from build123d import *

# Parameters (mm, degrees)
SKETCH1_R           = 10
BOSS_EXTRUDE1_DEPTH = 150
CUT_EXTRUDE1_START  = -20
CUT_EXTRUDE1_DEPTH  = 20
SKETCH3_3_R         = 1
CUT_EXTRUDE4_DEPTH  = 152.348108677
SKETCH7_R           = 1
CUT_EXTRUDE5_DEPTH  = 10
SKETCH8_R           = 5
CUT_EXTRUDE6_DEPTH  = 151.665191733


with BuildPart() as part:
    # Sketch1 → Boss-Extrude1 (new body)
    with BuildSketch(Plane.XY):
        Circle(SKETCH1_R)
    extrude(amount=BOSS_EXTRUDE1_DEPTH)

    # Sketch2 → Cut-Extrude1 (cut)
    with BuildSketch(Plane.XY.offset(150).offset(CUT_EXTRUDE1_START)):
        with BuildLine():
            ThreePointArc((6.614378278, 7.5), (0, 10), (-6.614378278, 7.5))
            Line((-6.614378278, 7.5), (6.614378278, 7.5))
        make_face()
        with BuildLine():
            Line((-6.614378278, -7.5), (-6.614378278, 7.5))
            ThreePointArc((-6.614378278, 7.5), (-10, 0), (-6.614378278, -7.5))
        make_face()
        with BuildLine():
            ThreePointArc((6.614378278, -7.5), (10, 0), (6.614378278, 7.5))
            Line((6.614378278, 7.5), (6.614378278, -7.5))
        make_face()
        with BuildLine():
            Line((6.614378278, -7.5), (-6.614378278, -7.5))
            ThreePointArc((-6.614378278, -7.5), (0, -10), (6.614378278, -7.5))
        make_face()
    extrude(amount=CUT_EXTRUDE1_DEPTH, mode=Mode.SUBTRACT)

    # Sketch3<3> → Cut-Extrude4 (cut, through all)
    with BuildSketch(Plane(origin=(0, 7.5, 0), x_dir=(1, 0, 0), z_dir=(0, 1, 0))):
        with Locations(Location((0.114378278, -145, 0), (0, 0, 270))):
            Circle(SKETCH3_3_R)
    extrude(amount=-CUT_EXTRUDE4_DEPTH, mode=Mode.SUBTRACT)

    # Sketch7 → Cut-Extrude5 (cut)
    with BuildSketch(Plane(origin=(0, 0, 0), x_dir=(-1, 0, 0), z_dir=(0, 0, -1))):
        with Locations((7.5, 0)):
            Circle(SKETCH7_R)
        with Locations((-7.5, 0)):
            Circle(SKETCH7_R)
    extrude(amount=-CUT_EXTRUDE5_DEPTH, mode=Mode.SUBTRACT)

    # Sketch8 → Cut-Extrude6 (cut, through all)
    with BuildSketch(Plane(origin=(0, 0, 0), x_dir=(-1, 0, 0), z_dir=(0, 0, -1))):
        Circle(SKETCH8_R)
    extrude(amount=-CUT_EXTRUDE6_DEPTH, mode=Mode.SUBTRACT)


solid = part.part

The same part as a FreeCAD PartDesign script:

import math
import FreeCAD as App
import Part
import Sketcher

V = App.Vector

doc = App.newDocument("Part")
body = doc.addObject("PartDesign::Body", "Body")

# Sketch on XY plane
sketch1 = body.newObject("Sketcher::SketchObject", "Sketch")
sketch1.AttachmentSupport = (doc.getObject("XY_Plane"), [""])
sketch1.MapMode = "FlatFace"
sketch1.addGeometry(Part.Circle(V(0, 0, 0), V(0, 0, 1), 10), False)
sketch1.addConstraint([
    Sketcher.Constraint("Coincident", 0, 3, -1, 1),
    Sketcher.Constraint("Diameter", 0, 20.0),
])
pad1 = body.newObject("PartDesign::Pad", "Pad")
pad1.Profile = sketch1
pad1.Length = 150

# Sketch on XY plane
sketch2 = body.newObject("Sketcher::SketchObject", "Sketch001")
sketch2.AttachmentSupport = (doc.getObject("XY_Plane"), [""])
sketch2.MapMode = "FlatFace"
sketch2.AttachmentOffset = App.Placement(V(0, 0, 130), App.Rotation())
sketch2.addGeometry([
    Part.ArcOfCircle(Part.Circle(V(0, 0, 0), V(0, 0, 1), 10), math.radians(48.590378), math.radians(131.409622)),  # 0
    Part.LineSegment(V(-6.614378, 7.5, 0), V(6.614378, 7.5, 0)),  # 1
    Part.LineSegment(V(-6.614378, -7.5, 0), V(-6.614378, 7.5, 0)),  # 2
    Part.ArcOfCircle(Part.Circle(V(0, 0, 0), V(0, 0, 1), 10), math.radians(131.409622), math.radians(228.590378)),  # 3
    Part.ArcOfCircle(Part.Circle(V(0, 0, 0), V(0, 0, 1), 10), math.radians(-48.590378), math.radians(48.590378)),  # 4
    Part.LineSegment(V(6.614378, 7.5, 0), V(6.614378, -7.5, 0)),  # 5
    Part.LineSegment(V(6.614378, -7.5, 0), V(-6.614378, -7.5, 0)),  # 6
    Part.ArcOfCircle(Part.Circle(V(0, 0, 0), V(0, 0, 1), 10), math.radians(-131.409622), math.radians(-48.590378)),  # 7
], False)
sketch2.addConstraint([
    Sketcher.Constraint("Coincident", 0, 1, 1, 2),
    Sketcher.Constraint("Coincident", 1, 1, 0, 2),
    Sketcher.Constraint("Coincident", 2, 1, 3, 2),
    Sketcher.Constraint("Coincident", 3, 1, 2, 2),
    Sketcher.Constraint("Coincident", 4, 1, 5, 2),
    Sketcher.Constraint("Coincident", 5, 1, 4, 2),
    Sketcher.Constraint("Coincident", 6, 1, 7, 2),
    Sketcher.Constraint("Coincident", 7, 1, 6, 2),
    Sketcher.Constraint("Horizontal", 1),
    Sketcher.Constraint("Vertical", 2),
    Sketcher.Constraint("Vertical", 5),
    Sketcher.Constraint("Horizontal", 6),
    Sketcher.Constraint("Coincident", 0, 3, -1, 1),
    Sketcher.Constraint("Coincident", 3, 3, -1, 1),
    Sketcher.Constraint("Coincident", 4, 3, -1, 1),
    Sketcher.Constraint("Coincident", 7, 3, -1, 1),
    Sketcher.Constraint("Coincident", 3, 1, 1, 1),
    Sketcher.Constraint("Coincident", 5, 1, 0, 1),
    Sketcher.Constraint("Coincident", 6, 1, 4, 1),
    Sketcher.Constraint("Radius", 0, 10.0),
    Sketcher.Constraint("DistanceY", 2, 1, 2, 2, 15.0),
])
pocket1 = body.newObject("PartDesign::Pocket", "Pocket")
pocket1.Profile = sketch2
pocket1.Length = 20
pocket1.Reversed = True

# Sketch on XZ plane
sketch3 = body.newObject("Sketcher::SketchObject", "Sketch002")
sketch3.AttachmentSupport = (doc.getObject("XZ_Plane"), [""])
sketch3.MapMode = "FlatFace"
sketch3.AttachmentOffset = App.Placement(V(0, 0, -7.5), App.Rotation())
sketch3.addGeometry(Part.Circle(V(0.114378, 145, 0), V(0, 0, 1), 1), False)
sketch3.addConstraint([
    Sketcher.Constraint("Diameter", 0, 2.0),
    Sketcher.Constraint("DistanceY", -1, 1, 0, 3, 145.0),
    Sketcher.Constraint("DistanceX", -1, 1, 0, 3, 0.114378),
])
pocket2 = body.newObject("PartDesign::Pocket", "Pocket001")
pocket2.Profile = sketch3
pocket2.Type = "ThroughAll"
pocket2.Reversed = True

# Sketch on XY plane
sketch4 = body.newObject("Sketcher::SketchObject", "Sketch003")
sketch4.AttachmentSupport = (doc.getObject("XY_Plane"), [""])
sketch4.MapMode = "FlatFace"
sketch4.addGeometry([
    Part.Circle(V(-7.5, 0, 0), V(0, 0, 1), 1),
    Part.Circle(V(7.5, 0, 0), V(0, 0, 1), 1),
], False)
sketch4.addConstraint([
    Sketcher.Constraint("Equal", 0, 1),
    Sketcher.Constraint("Symmetric", 0, 3, 1, 3, -1, 1),
    Sketcher.Constraint("PointOnObject", 0, 3, -1),
    Sketcher.Constraint("Diameter", 0, 2.0),
    Sketcher.Constraint("DistanceX", 0, 3, 1, 3, 15.0),
])
pocket3 = body.newObject("PartDesign::Pocket", "Pocket002")
pocket3.Profile = sketch4
pocket3.Length = 10
pocket3.Reversed = True

# Sketch on XY plane
sketch5 = body.newObject("Sketcher::SketchObject", "Sketch004")
sketch5.AttachmentSupport = (doc.getObject("XY_Plane"), [""])
sketch5.MapMode = "FlatFace"
sketch5.addGeometry(Part.Circle(V(0, 0, 0), V(0, 0, 1), 5), False)
sketch5.addConstraint([
    Sketcher.Constraint("Coincident", 0, 3, -1, 1),
    Sketcher.Constraint("Diameter", 0, 10.0),
])
pocket4 = body.newObject("PartDesign::Pocket", "Pocket003")
pocket4.Profile = sketch5
pocket4.Type = "ThroughAll"
pocket4.Reversed = True

doc.recompute()
